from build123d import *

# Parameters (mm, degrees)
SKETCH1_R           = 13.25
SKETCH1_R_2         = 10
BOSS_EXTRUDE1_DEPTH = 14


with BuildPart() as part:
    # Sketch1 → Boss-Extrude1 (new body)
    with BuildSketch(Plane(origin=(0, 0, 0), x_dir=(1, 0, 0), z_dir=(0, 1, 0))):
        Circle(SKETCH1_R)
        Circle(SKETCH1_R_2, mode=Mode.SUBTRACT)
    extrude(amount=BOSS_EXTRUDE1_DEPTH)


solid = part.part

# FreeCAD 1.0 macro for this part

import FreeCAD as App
import Part
import Sketcher
Q = App.Units.Quantity

doc = App.newDocument("Part")
body = doc.addObject("PartDesign::Body", "Body")

sketch1 = body.newObject("Sketcher::SketchObject", "Sketch")
sketch1.AttachmentSupport = (doc.getObject("XZ_Plane"), [""])
sketch1.MapMode = "FlatFace"
sketch1.addGeometry([
    Part.Circle(App.Vector(0, 0, 0), App.Vector(0, 0, 1), 13),
    Part.Circle(App.Vector(0, 0, 0), App.Vector(0, 0, 1), 10),
], False)
sketch1.addConstraint([
    Sketcher.Constraint("Coincident", 0, 3, -1, 1),
    Sketcher.Constraint("Coincident", 1, 3, -1, 1),
    Sketcher.Constraint("Diameter", 1, Q("20 mm")),
    Sketcher.Constraint("Diameter", 0, Q("26.5 mm")),
])
pad1 = body.newObject("PartDesign::Pad", "Pad")
pad1.Profile = sketch1
pad1.Length = 14
pad1.Reversed = True

doc.recompute()
